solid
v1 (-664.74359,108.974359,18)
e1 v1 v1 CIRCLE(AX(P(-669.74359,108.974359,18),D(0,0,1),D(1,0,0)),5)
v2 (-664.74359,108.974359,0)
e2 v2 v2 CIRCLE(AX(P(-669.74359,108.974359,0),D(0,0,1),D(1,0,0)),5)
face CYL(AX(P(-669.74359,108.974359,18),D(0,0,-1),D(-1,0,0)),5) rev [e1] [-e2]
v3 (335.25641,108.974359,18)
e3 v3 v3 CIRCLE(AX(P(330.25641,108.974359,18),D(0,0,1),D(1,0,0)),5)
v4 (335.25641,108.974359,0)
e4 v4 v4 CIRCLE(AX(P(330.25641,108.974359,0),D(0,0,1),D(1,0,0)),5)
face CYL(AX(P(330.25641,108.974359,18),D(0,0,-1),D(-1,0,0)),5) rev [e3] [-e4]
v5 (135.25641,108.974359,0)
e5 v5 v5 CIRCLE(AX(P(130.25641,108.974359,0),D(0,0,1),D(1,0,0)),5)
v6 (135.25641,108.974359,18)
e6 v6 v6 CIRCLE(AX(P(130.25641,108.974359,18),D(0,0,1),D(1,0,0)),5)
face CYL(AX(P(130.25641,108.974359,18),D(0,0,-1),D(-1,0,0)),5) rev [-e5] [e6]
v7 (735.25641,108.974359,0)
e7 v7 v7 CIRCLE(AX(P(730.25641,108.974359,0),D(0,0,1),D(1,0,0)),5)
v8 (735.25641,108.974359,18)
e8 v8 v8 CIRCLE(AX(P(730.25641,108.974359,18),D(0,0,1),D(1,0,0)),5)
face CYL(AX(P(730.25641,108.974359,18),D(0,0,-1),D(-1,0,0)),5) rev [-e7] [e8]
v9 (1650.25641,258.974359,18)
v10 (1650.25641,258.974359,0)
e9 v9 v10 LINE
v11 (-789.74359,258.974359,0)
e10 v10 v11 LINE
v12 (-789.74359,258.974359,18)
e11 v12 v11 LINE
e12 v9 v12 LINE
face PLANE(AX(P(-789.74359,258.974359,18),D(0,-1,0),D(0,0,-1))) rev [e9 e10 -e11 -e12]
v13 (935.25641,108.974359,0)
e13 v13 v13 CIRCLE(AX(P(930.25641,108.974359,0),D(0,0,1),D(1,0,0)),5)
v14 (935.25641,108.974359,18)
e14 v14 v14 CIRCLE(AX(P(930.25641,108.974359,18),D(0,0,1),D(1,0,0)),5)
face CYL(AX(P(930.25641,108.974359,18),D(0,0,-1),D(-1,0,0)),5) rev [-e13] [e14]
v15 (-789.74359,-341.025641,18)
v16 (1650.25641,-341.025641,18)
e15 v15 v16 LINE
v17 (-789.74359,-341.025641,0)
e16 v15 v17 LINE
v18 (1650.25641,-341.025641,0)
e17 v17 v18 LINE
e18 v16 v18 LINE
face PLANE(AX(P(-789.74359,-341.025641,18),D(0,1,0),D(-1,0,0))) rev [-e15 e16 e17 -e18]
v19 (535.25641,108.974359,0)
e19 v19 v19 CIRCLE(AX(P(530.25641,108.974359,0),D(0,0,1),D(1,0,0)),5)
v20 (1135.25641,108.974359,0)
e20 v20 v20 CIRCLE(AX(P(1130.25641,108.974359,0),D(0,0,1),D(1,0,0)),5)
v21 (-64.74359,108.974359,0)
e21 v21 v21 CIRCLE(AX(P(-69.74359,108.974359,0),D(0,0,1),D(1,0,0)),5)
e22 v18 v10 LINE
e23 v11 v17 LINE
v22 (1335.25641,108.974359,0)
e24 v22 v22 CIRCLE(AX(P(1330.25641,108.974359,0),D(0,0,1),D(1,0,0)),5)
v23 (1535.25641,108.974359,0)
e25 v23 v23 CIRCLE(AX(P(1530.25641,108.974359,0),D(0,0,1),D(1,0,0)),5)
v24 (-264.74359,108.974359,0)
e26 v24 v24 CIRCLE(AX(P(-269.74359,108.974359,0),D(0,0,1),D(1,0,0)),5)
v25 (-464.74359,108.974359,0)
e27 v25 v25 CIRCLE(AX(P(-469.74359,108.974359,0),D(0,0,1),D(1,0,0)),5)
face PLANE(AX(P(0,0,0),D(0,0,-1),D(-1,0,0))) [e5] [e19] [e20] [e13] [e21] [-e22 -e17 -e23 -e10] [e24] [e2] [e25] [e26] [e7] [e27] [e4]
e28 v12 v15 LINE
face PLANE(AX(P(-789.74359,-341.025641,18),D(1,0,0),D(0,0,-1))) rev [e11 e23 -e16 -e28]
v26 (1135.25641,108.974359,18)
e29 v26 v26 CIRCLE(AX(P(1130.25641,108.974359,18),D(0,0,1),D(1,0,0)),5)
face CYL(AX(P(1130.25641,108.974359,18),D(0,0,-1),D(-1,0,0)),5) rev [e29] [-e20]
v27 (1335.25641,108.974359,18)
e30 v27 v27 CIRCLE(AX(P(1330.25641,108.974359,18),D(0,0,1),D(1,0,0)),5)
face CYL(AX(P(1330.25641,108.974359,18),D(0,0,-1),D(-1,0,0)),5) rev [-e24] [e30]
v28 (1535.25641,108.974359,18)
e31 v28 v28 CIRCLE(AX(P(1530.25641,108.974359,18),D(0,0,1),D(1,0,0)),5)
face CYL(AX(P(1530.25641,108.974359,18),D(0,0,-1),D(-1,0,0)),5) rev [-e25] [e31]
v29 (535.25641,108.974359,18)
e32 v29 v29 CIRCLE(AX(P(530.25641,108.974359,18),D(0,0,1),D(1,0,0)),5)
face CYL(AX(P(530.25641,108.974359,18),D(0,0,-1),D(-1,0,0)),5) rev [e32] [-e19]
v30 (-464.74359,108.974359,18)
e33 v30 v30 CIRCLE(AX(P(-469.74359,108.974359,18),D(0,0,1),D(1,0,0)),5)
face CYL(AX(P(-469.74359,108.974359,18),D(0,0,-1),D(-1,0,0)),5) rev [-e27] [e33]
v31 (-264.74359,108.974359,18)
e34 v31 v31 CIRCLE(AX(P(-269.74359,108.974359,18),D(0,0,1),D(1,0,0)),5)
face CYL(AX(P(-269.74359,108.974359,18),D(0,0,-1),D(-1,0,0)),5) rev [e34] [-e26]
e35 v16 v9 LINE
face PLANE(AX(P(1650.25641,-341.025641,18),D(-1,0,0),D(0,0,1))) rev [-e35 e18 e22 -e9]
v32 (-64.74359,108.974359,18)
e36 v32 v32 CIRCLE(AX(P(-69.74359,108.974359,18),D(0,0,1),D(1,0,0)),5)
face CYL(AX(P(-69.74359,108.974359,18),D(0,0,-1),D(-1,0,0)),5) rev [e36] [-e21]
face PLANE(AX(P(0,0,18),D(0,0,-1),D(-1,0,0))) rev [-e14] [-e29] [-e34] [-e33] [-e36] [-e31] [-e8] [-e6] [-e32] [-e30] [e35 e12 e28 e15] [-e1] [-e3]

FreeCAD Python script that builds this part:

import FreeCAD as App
import Part
import Sketcher
from FreeCAD import Vector


def add_polygon(sketch, points):
    """Adds a closed chain of lines whose ends are joined by coincident constraints."""
    first, n = sketch.GeometryCount, len(points)
    for a, b in zip(points, points[1:] + points[:1]):
        sketch.addGeometry(Part.LineSegment(App.Vector(*a, 0), App.Vector(*b, 0)), False)
    for i in range(n):
        sketch.addConstraint(Sketcher.Constraint("Coincident", first + i, 2, first + (i + 1) % n, 1))

doc = App.newDocument("Part")
body = doc.addObject("PartDesign::Body", "Body")

# Sketch on XY plane
sketch1 = body.newObject("Sketcher::SketchObject", "Sketch")
sketch1.AttachmentSupport = (doc.getObject("XY_Plane"), [""])
sketch1.MapMode = "FlatFace"
add_polygon(sketch1, [(-790, 259), (-790, -341), (1650, -341), (1650, 259)])  # lines 0-3
sketch1.addGeometry(Part.Circle(Vector(-670, 109, 0), Vector(0, 0, 1), 5), False)  # 4
sketch1.addGeometry(Part.Circle(Vector(-470, 109, 0), Vector(0, 0, 1), 5), False)  # 5
sketch1.addGeometry(Part.Circle(Vector(-270, 109, 0), Vector(0, 0, 1), 5), False)  # 6
sketch1.addGeometry(Part.Circle(Vector(-70, 109, 0), Vector(0, 0, 1), 5), False)  # 7
sketch1.addGeometry(Part.Circle(Vector(130, 109, 0), Vector(0, 0, 1), 5), False)  # 8
sketch1.addGeometry(Part.Circle(Vector(330, 109, 0), Vector(0, 0, 1), 5), False)  # 9
sketch1.addGeometry(Part.Circle(Vector(530, 109, 0), Vector(0, 0, 1), 5), False)  # 10
sketch1.addGeometry(Part.Circle(Vector(730, 109, 0), Vector(0, 0, 1), 5), False)  # 11
sketch1.addGeometry(Part.Circle(Vector(930, 109, 0), Vector(0, 0, 1), 5), False)  # 12
sketch1.addGeometry(Part.Circle(Vector(1130, 109, 0), Vector(0, 0, 1), 5), False)  # 13
sketch1.addGeometry(Part.Circle(Vector(1330, 109, 0), Vector(0, 0, 1), 5), False)  # 14
sketch1.addGeometry(Part.Circle(Vector(1530, 109, 0), Vector(0, 0, 1), 5), False)  # 15
sketch1.addConstraint(Sketcher.Constraint("Vertical", 0))
sketch1.addConstraint(Sketcher.Constraint("Horizontal", 1))
sketch1.addConstraint(Sketcher.Constraint("Vertical", 2))
sketch1.addConstraint(Sketcher.Constraint("Horizontal", 3))
sketch1.addConstraint(Sketcher.Constraint("Equal", 4, 5))
sketch1.addConstraint(Sketcher.Constraint("Equal", 5, 6))
sketch1.addConstraint(Sketcher.Constraint("Equal", 6, 7))
sketch1.addConstraint(Sketcher.Constraint("Equal", 7, 8))
sketch1.addConstraint(Sketcher.Constraint("Equal", 8, 9))
sketch1.addConstraint(Sketcher.Constraint("Equal", 9, 10))
sketch1.addConstraint(Sketcher.Constraint("Equal", 10, 11))
sketch1.addConstraint(Sketcher.Constraint("Equal", 11, 12))
sketch1.addConstraint(Sketcher.Constraint("Equal", 12, 13))
sketch1.addConstraint(Sketcher.Constraint("Equal", 13, 14))
sketch1.addConstraint(Sketcher.Constraint("Equal", 14, 15))
sketch1.addConstraint(Sketcher.Constraint("Horizontal", 4, 3, 5, 3))
sketch1.addConstraint(Sketcher.Constraint("Horizontal", 5, 3, 6, 3))
sketch1.addConstraint(Sketcher.Constraint("Horizontal", 6, 3, 7, 3))
sketch1.addConstraint(Sketcher.Constraint("Horizontal", 7, 3, 8, 3))
sketch1.addConstraint(Sketcher.Constraint("Horizontal", 8, 3, 9, 3))
sketch1.addConstraint(Sketcher.Constraint("Horizontal", 9, 3, 10, 3))
sketch1.addConstraint(Sketcher.Constraint("Horizontal", 10, 3, 11, 3))
sketch1.addConstraint(Sketcher.Constraint("Horizontal", 11, 3, 12, 3))
sketch1.addConstraint(Sketcher.Constraint("Horizontal", 12, 3, 13, 3))
sketch1.addConstraint(Sketcher.Constraint("Horizontal", 13, 3, 14, 3))
sketch1.addConstraint(Sketcher.Constraint("Horizontal", 14, 3, 15, 3))
sketch1.addConstraint(Sketcher.Constraint("Diameter", 4, 10.0))
sketch1.addConstraint(Sketcher.Constraint("DistanceX", 1, 1, 1, 2, 2440.0))
sketch1.addConstraint(Sketcher.Constraint("DistanceY", 0, 2, 0, 1, 600.0))
sketch1.addConstraint(Sketcher.Constraint("DistanceX", 4, 3, 5, 3, 200.0))
sketch1.addConstraint(Sketcher.Constraint("DistanceX", 5, 3, 6, 3, 200.0))
sketch1.addConstraint(Sketcher.Constraint("DistanceX", 6, 3, 7, 3, 200.0))
sketch1.addConstraint(Sketcher.Constraint("DistanceX", 7, 3, 8, 3, 200.0))
sketch1.addConstraint(Sketcher.Constraint("DistanceX", 8, 3, 9, 3, 200.0))
sketch1.addConstraint(Sketcher.Constraint("DistanceX", 9, 3, 10, 3, 200.0))
sketch1.addConstraint(Sketcher.Constraint("DistanceX", 10, 3, 11, 3, 200.0))
sketch1.addConstraint(Sketcher.Constraint("DistanceX", 11, 3, 12, 3, 200.0))
sketch1.addConstraint(Sketcher.Constraint("DistanceX", 12, 3, 13, 3, 200.0))
sketch1.addConstraint(Sketcher.Constraint("DistanceX", 13, 3, 14, 3, 200.0))
sketch1.addConstraint(Sketcher.Constraint("DistanceX", 14, 3, 15, 3, 200.0))
sketch1.addConstraint(Sketcher.Constraint("DistanceX", 0, 2, 4, 3, 120.0))
sketch1.addConstraint(Sketcher.Constraint("DistanceY", 0, 2, 4, 3, 450.0))
sketch1.addConstraint(Sketcher.Constraint("DistanceX", 4, 3, -1, 1, 669.74359))
sketch1.addConstraint(Sketcher.Constraint("DistanceY", -1, 1, 4, 3, 108.974359))
pad1 = body.newObject("PartDesign::Pad", "Pad")
pad1.Profile = sketch1
pad1.Length = 18

doc.recompute()
